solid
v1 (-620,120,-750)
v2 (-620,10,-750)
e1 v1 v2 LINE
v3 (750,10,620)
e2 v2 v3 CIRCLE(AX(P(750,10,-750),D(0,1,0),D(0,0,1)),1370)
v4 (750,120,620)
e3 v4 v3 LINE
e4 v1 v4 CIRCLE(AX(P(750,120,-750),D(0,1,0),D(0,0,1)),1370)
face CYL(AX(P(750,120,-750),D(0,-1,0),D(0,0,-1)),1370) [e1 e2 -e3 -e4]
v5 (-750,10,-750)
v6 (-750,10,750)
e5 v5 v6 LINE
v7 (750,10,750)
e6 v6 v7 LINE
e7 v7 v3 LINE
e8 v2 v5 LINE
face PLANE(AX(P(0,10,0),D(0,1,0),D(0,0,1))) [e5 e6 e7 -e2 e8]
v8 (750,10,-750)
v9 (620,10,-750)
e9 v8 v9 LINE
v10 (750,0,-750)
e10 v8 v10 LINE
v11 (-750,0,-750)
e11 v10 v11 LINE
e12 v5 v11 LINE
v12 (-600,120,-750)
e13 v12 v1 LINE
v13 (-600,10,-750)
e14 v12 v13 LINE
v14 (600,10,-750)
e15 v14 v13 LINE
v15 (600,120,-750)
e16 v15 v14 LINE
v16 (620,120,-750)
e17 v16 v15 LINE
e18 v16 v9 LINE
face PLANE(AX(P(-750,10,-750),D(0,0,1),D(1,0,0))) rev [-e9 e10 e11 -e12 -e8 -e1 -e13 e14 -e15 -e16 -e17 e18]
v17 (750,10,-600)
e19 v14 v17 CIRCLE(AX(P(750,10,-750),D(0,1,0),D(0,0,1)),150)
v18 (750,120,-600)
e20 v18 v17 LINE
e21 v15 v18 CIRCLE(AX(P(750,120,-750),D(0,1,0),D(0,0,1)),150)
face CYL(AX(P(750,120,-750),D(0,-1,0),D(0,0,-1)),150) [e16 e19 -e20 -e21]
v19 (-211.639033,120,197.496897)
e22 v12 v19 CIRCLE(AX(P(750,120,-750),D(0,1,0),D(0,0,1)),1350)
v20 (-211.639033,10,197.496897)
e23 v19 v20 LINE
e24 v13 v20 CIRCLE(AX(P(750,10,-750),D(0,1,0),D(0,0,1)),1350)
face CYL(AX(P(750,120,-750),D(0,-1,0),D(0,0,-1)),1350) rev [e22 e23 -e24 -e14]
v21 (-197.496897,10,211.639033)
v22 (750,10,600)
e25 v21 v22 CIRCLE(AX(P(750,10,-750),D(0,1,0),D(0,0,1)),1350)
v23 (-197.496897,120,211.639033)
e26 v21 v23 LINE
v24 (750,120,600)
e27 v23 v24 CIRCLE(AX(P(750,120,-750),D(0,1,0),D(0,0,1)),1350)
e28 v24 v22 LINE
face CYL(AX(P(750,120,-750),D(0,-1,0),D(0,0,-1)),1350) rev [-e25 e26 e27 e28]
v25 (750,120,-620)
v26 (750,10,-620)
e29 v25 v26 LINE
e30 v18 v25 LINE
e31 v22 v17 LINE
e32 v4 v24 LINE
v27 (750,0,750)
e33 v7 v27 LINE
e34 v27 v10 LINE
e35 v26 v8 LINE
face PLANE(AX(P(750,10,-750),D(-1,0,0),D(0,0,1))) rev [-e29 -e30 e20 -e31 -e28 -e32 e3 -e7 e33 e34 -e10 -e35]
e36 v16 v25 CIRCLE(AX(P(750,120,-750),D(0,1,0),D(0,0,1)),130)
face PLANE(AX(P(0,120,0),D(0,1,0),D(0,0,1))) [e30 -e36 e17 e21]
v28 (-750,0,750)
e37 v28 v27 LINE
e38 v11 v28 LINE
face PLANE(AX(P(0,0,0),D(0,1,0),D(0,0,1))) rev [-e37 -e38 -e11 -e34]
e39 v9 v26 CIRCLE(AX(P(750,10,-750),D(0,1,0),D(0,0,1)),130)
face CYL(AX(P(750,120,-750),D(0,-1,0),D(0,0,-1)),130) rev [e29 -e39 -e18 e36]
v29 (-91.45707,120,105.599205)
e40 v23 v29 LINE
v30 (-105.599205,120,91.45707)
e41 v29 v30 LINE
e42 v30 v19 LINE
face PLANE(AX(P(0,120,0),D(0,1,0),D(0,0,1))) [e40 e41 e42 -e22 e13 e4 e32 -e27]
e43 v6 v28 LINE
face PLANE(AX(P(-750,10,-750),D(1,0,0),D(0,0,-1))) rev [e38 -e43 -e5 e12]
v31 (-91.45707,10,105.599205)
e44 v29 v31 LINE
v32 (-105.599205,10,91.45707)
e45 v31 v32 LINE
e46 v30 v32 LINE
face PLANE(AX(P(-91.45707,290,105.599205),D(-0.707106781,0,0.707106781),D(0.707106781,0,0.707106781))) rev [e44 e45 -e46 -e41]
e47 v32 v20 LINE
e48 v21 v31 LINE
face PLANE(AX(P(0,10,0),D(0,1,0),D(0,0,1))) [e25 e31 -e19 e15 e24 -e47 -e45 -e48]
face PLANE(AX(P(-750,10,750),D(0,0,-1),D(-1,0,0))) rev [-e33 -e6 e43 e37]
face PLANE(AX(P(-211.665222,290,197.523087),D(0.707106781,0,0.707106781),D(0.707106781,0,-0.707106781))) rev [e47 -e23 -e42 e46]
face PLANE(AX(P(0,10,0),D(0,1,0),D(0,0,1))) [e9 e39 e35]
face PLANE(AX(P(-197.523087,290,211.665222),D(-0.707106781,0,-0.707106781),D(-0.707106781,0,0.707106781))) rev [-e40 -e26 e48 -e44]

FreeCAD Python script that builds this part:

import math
import FreeCAD as App
import Part
import Sketcher
from FreeCAD import Vector
Q = App.Units.Quantity

doc = App.newDocument("Part")
body = doc.addObject("PartDesign::Body", "Body")

# Sketch on XZ plane
sketch1 = doc.addObject("Sketcher::SketchObject", "Sketch")
body.addObject(sketch1)
sketch1.AttachmentSupport = (doc.XZ_Plane, [""])
sketch1.MapMode = "FlatFace"
sketch1.addGeometry(Part.LineSegment(Vector(-750, -750, 0), Vector(-750, 750, 0)), False)
sketch1.addGeometry(Part.LineSegment(Vector(-750, 750, 0), Vector(750, 750, 0)), False)
sketch1.addGeometry(Part.LineSegment(Vector(750, 750, 0), Vector(750, -750, 0)), False)
sketch1.addGeometry(Part.LineSegment(Vector(750, -750, 0), Vector(-750, -750, 0)), False)
sketch1.addConstraint(Sketcher.Constraint("Coincident", 0, 2, 1, 1))
sketch1.addConstraint(Sketcher.Constraint("Coincident", 1, 2, 2, 1))
sketch1.addConstraint(Sketcher.Constraint("Coincident", 2, 2, 3, 1))
sketch1.addConstraint(Sketcher.Constraint("Coincident", 3, 2, 0, 1))
sketch1.addConstraint(Sketcher.Constraint("Vertical", 0))
sketch1.addConstraint(Sketcher.Constraint("Horizontal", 1))
sketch1.addConstraint(Sketcher.Constraint("Vertical", 2))
sketch1.addConstraint(Sketcher.Constraint("Horizontal", 3))
sketch1.addConstraint(Sketcher.Constraint("Symmetric", 0, 2, 2, 2, -1, 1))
sketch1.addConstraint(Sketcher.Constraint("Equal", 3, 0))
sketch1.addConstraint(Sketcher.Constraint("DistanceX", 1, 1, 1, 2, 1500.0))
pad1 = doc.addObject("PartDesign::Pad", "Pad")
body.addObject(pad1)
pad1.Profile = sketch1
pad1.Length = 10
pad1.Reversed = True

# Sketch on XZ plane
sketch2 = doc.addObject("Sketcher::SketchObject", "Sketch001")
body.addObject(sketch2)
sketch2.AttachmentSupport = (doc.XZ_Plane, [""])
sketch2.MapMode = "FlatFace"
sketch2.AttachmentOffset = App.Placement(Vector(0, 0, -10), App.Rotation())
sketch2.addGeometry(Part.ArcOfCircle(Part.Circle(Vector(750, -750, 0), Vector(0, 0, 1), 1350), math.radians(90), math.radians(180)), False)
sketch2.addGeometry(Part.LineSegment(Vector(-600, -750, 0), Vector(-620, -750, 0)), False)
sketch2.addGeometry(Part.ArcOfCircle(Part.Circle(Vector(750, -750, 0), Vector(0, 0, 1), 1370), math.radians(90), math.radians(180)), False)
sketch2.addGeometry(Part.LineSegment(Vector(750, 620, 0), Vector(750, 600, 0)), False)
sketch2.addGeometry(Part.LineSegment(Vector(620, -750, 0), Vector(600, -750, 0)), False)
sketch2.addGeometry(Part.ArcOfCircle(Part.Circle(Vector(750, -750, 0), Vector(0, 0, 1), 150), math.radians(90), math.radians(180)), False)
sketch2.addGeometry(Part.LineSegment(Vector(750, -600, 0), Vector(750, -620, 0)), False)
sketch2.addGeometry(Part.ArcOfCircle(Part.Circle(Vector(750, -750, 0), Vector(0, 0, 1), 130), math.radians(90), math.radians(180)), False)
sketch2.addConstraint(Sketcher.Constraint("Coincident", 0, 2, 1, 1))
sketch2.addConstraint(Sketcher.Constraint("Coincident", 1, 2, 2, 2))
sketch2.addConstraint(Sketcher.Constraint("Coincident", 2, 1, 3, 1))
sketch2.addConstraint(Sketcher.Constraint("Coincident", 3, 2, 0, 1))
sketch2.addConstraint(Sketcher.Constraint("Coincident", 4, 2, 5, 2))
sketch2.addConstraint(Sketcher.Constraint("Coincident", 5, 1, 6, 1))
sketch2.addConstraint(Sketcher.Constraint("Coincident", 6, 2, 7, 1))
sketch2.addConstraint(Sketcher.Constraint("Coincident", 7, 2, 4, 1))
sketch2.addConstraint(Sketcher.Constraint("Horizontal", 1))
sketch2.addConstraint(Sketcher.Constraint("Vertical", 3))
sketch2.addConstraint(Sketcher.Constraint("Horizontal", 4))
sketch2.addConstraint(Sketcher.Constraint("Vertical", 6))
sketch2.addConstraint(Sketcher.Constraint("Coincident", 2, 3, 0, 3))
sketch2.addConstraint(Sketcher.Constraint("Coincident", 5, 3, 0, 3))
sketch2.addConstraint(Sketcher.Constraint("Coincident", 7, 3, 0, 3))
sketch2.addConstraint(Sketcher.Constraint("Symmetric", 1, 2, 7, 2, -2))
sketch2.addConstraint(Sketcher.Constraint("Symmetric", 3, 2, 5, 1, -1))
sketch2.addConstraint(Sketcher.Constraint("Equal", 1, 4))
sketch2.addConstraint(Sketcher.Constraint("Radius", 0, 1350.0))
sketch2.addConstraint(Sketcher.Constraint("Radius", 2, 1370.0))
sketch2.addConstraint(Sketcher.Constraint("Radius", 5, 150.0))
sketch2.addConstraint(Sketcher.Constraint("DistanceY", 1, 2, -1, 1, 750.0))
sketch2.addConstraint(Sketcher.Constraint("DistanceX", -1, 1, 3, 2, 750.0))
pad2 = doc.addObject("PartDesign::Pad", "Pad001")
body.addObject(pad2)
pad2.Profile = sketch2
pad2.Length = 110
pad2.Reversed = True

# Sketch on XZ plane
sketch3 = doc.addObject("Sketcher::SketchObject", "Sketch002")
body.addObject(sketch3)
sketch3.AttachmentSupport = (doc.XZ_Plane, [""])
sketch3.MapMode = "FlatFace"
sketch3.AttachmentOffset = App.Placement(Vector(0, 0, -10), App.Rotation())
sketch3.addGeometry(Part.LineSegment(Vector(-197.523087, 211.665222, 0), Vector(-91.45707, 105.599205, 0)), False)
sketch3.addGeometry(Part.LineSegment(Vector(-91.45707, 105.599205, 0), Vector(-105.599205, 91.45707, 0)), False)
sketch3.addGeometry(Part.LineSegment(Vector(-105.599205, 91.45707, 0), Vector(-211.665222, 197.523087, 0)), False)
sketch3.addGeometry(Part.LineSegment(Vector(-211.665222, 197.523087, 0), Vector(-197.523087, 211.665222, 0)), False)
sketch3.addConstraint(Sketcher.Constraint("Coincident", 0, 2, 1, 1))
sketch3.addConstraint(Sketcher.Constraint("Coincident", 1, 2, 2, 1))
sketch3.addConstraint(Sketcher.Constraint("Coincident", 2, 2, 3, 1))
sketch3.addConstraint(Sketcher.Constraint("Coincident", 3, 2, 0, 1))
sketch3.addConstraint(Sketcher.Constraint("Perpendicular", 0, 1))
sketch3.addConstraint(Sketcher.Constraint("Perpendicular", 1, 2))
sketch3.addConstraint(Sketcher.Constraint("Perpendicular", 2, 3))
sketch3.addConstraint(Sketcher.Constraint("Angle", 0, Q("-45 deg")))
sketch3.addConstraint(Sketcher.Constraint("Distance", 0, 150.0))
sketch3.addConstraint(Sketcher.Constraint("Distance", 1, 20.0))
sketch3.addConstraint(Sketcher.Constraint("DistanceX", 0, 2, -1, 1, 91.45707))
sketch3.addConstraint(Sketcher.Constraint("DistanceY", -1, 1, 1, 2, 91.45707))
pad3 = doc.addObject("PartDesign::Pad", "Pad002")
body.addObject(pad3)
pad3.Profile = sketch3
pad3.Length = 110
pad3.Reversed = True

doc.recompute()
